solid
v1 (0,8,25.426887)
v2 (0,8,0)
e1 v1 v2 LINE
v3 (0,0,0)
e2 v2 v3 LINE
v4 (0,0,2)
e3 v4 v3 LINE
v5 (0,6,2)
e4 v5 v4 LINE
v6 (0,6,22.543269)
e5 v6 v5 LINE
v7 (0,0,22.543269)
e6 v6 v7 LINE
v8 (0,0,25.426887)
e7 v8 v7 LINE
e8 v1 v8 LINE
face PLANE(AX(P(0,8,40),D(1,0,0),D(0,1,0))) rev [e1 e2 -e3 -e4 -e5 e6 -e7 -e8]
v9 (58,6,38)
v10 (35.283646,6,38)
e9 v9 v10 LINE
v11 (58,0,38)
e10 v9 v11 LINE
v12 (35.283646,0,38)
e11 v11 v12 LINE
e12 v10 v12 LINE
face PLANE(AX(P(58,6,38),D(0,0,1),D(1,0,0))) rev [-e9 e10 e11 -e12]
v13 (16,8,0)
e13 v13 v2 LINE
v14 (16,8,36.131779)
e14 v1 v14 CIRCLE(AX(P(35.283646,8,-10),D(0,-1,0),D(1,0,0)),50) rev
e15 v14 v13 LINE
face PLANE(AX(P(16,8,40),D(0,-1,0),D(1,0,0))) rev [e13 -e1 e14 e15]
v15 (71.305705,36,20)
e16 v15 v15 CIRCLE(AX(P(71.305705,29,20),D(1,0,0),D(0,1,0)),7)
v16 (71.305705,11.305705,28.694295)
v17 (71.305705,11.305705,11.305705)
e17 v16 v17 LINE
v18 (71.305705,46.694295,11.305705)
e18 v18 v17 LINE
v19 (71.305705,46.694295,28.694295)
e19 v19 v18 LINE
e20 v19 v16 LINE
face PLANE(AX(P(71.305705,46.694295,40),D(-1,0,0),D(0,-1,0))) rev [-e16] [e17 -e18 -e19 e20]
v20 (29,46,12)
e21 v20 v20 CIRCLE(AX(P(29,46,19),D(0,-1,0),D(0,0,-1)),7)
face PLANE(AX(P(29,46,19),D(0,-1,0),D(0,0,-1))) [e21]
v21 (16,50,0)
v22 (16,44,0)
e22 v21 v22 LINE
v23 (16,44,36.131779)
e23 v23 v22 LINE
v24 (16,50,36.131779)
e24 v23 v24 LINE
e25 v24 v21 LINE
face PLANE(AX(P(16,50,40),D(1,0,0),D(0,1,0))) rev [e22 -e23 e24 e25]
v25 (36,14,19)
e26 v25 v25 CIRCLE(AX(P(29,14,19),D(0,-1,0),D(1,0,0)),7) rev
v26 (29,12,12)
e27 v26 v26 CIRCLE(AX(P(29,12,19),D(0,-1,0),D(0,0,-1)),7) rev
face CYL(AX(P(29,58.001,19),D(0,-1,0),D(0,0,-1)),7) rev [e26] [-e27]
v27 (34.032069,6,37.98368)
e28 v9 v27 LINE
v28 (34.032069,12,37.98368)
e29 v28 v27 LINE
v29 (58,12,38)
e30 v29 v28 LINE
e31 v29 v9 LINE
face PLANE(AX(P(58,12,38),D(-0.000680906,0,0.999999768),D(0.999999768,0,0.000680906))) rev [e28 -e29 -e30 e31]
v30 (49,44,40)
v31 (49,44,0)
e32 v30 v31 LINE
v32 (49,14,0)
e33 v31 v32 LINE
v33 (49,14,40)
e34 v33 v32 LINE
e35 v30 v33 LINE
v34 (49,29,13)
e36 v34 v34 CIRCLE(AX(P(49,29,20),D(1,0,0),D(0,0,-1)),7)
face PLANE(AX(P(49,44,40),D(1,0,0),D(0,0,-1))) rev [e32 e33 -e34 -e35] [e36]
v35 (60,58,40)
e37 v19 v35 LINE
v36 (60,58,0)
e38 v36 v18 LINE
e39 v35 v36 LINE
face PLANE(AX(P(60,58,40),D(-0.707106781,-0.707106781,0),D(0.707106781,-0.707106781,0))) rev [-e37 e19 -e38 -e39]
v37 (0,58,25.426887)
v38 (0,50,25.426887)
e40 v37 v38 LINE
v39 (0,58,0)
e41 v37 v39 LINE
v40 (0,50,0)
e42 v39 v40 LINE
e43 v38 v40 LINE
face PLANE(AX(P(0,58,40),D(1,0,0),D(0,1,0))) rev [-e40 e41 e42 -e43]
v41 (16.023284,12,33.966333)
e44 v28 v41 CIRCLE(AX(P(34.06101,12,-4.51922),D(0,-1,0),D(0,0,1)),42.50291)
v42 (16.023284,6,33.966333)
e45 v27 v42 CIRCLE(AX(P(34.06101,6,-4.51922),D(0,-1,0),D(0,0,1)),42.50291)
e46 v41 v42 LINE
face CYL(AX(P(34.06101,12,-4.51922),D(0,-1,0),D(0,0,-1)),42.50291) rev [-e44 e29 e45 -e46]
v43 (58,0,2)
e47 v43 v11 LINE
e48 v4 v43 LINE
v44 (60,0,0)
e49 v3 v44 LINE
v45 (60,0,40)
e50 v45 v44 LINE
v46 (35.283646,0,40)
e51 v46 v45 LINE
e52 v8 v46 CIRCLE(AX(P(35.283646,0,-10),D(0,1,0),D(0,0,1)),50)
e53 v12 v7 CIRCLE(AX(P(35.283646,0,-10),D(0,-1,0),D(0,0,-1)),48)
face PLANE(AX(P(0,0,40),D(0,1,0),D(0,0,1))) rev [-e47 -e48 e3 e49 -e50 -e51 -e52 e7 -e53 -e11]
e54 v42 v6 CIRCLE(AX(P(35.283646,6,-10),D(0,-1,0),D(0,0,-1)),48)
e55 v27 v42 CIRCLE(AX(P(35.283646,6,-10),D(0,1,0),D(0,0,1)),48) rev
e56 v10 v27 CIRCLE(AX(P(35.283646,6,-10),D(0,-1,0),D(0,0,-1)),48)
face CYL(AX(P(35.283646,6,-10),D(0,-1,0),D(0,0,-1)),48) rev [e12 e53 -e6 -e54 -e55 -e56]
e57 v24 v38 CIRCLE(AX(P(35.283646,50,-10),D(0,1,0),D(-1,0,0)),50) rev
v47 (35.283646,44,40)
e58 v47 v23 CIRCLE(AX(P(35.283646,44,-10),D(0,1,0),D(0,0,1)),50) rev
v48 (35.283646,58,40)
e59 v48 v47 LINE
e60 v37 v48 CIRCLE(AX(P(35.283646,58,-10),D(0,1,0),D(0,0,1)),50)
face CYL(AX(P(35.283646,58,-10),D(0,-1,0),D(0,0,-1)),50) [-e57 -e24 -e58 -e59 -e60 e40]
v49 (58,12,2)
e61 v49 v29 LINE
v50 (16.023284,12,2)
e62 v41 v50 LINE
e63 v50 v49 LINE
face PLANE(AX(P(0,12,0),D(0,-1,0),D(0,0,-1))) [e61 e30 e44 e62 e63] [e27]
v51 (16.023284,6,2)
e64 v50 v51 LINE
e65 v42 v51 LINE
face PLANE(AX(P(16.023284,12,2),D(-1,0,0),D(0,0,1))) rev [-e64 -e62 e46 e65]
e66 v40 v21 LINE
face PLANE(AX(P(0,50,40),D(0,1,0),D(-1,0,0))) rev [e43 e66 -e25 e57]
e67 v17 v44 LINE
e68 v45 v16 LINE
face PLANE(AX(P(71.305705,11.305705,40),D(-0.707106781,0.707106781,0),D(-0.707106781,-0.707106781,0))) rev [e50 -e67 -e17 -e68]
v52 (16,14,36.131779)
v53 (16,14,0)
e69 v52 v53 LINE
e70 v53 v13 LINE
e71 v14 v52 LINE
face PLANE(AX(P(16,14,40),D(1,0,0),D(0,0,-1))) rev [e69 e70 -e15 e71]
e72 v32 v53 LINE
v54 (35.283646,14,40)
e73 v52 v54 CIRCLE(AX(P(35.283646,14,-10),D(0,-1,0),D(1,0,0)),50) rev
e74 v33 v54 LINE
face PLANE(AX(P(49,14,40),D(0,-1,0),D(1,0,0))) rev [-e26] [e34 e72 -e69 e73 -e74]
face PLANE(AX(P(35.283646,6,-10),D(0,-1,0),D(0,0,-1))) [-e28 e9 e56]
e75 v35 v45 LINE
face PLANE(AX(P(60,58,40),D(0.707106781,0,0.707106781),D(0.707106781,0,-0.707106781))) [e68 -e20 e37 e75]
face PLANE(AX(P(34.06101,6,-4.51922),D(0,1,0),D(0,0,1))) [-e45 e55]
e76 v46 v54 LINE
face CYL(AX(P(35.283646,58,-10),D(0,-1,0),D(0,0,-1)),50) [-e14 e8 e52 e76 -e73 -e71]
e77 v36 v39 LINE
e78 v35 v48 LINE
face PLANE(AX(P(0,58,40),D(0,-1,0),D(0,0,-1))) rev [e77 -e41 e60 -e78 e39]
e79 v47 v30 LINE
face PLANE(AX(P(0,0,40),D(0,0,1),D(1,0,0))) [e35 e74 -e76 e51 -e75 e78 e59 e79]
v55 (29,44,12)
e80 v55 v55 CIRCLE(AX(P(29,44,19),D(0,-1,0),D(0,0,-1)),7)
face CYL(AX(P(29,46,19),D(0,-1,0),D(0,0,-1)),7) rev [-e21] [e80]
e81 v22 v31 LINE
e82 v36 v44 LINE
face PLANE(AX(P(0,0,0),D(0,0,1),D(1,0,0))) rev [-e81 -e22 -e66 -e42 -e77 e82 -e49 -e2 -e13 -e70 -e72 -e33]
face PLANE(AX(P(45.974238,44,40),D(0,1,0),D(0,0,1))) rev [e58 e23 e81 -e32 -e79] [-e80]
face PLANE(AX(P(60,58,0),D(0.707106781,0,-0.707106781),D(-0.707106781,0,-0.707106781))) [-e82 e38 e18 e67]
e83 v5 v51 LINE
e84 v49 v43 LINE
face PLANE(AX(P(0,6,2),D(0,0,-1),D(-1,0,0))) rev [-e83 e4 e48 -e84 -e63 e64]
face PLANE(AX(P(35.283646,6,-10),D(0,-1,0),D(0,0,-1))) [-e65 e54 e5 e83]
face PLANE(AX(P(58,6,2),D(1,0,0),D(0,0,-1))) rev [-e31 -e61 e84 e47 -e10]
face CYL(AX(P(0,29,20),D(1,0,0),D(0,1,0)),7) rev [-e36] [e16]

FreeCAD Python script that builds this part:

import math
import FreeCAD as App
import Part
import Sketcher
from FreeCAD import Vector


def add_polygon(sketch, points):
    """Adds a closed chain of lines whose ends are joined by coincident constraints."""
    first, n = sketch.GeometryCount, len(points)
    for a, b in zip(points, points[1:] + points[:1]):
        sketch.addGeometry(Part.LineSegment(App.Vector(*a, 0), App.Vector(*b, 0)), False)
    for i in range(n):
        sketch.addConstraint(Sketcher.Constraint("Coincident", first + i, 2, first + (i + 1) % n, 1))

doc = App.newDocument("Part")
body = doc.addObject("PartDesign::Body", "Body")

sketch1 = body.newObject("Sketcher::SketchObject", "Sketch")
sketch1.AttachmentSupport = (doc.getObject("XY_Plane"), [""])
sketch1.MapMode = "FlatFace"
add_polygon(sketch1, [(71.305705, 46.694295), (60, 58), (0, 58), (0, 50), (16, 50), (16, 44), (49, 44), (49, 14), (16, 14), (16, 8), (0, 8), (0, 0), (60, 0), (71.305705, 11.305705)])
sketch1.addConstraint(Sketcher.Constraint("Horizontal", 1))
sketch1.addConstraint(Sketcher.Constraint("Vertical", 2))
sketch1.addConstraint(Sketcher.Constraint("Horizontal", 3))
sketch1.addConstraint(Sketcher.Constraint("Vertical", 4))
sketch1.addConstraint(Sketcher.Constraint("Horizontal", 5))
sketch1.addConstraint(Sketcher.Constraint("Vertical", 6))
sketch1.addConstraint(Sketcher.Constraint("Horizontal", 7))
sketch1.addConstraint(Sketcher.Constraint("Vertical", 8))
sketch1.addConstraint(Sketcher.Constraint("Horizontal", 9))
sketch1.addConstraint(Sketcher.Constraint("Vertical", 10))
sketch1.addConstraint(Sketcher.Constraint("Horizontal", 11))
sketch1.addConstraint(Sketcher.Constraint("Vertical", 13))
sketch1.addConstraint(Sketcher.Constraint("Coincident", 10, 2, -1, 1))
sketch1.addConstraint(Sketcher.Constraint("PointOnObject", 1, 2, -2))
sketch1.addConstraint(Sketcher.Constraint("Perpendicular", 0, 12))
sketch1.addConstraint(Sketcher.Constraint("Vertical", 4, 2, 7, 2))
sketch1.addConstraint(Sketcher.Constraint("Vertical", 0, 2, 11, 2))
sketch1.addConstraint(Sketcher.Constraint("Equal", 4, 8))
sketch1.addConstraint(Sketcher.Constraint("Equal", 2, 10))
sketch1.addConstraint(Sketcher.Constraint("Equal", 0, 12))
sketch1.addConstraint(Sketcher.Constraint("DistanceX", 1, 2, 1, 1, 60.0))
sketch1.addConstraint(Sketcher.Constraint("DistanceX", 3, 1, 3, 2, 16.0))
sketch1.addConstraint(Sketcher.Constraint("DistanceX", 5, 1, 5, 2, 33.0))
sketch1.addConstraint(Sketcher.Constraint("DistanceY", 2, 2, 2, 1, 8.0))
sketch1.addConstraint(Sketcher.Constraint("DistanceY", 4, 2, 4, 1, 6.0))
sketch1.addConstraint(Sketcher.Constraint("DistanceY", 6, 2, 6, 1, 30.0))
sketch1.addConstraint(Sketcher.Constraint("DistanceY", 13, 1, 13, 2, 35.388589))
pad1 = body.newObject("PartDesign::Pad", "Pad")
pad1.Profile = sketch1
pad1.Length = 40

sketch2 = body.newObject("Sketcher::SketchObject", "Sketch001")
sketch2.AttachmentSupport = (doc.getObject("XZ_Plane"), [""])
sketch2.MapMode = "FlatFace"
sketch2.addGeometry(Part.LineSegment(Vector(0, 40, 0), Vector(0, 25.426887, 0)), False)
sketch2.addGeometry(Part.ArcOfCircle(Part.Circle(Vector(35.283646, -10, 0), Vector(0, 0, 1), 50), math.radians(90), math.radians(134.883934)), False)
sketch2.addGeometry(Part.LineSegment(Vector(35.283646, 40, 0), Vector(0, 40, 0)), False)
sketch2.addConstraint(Sketcher.Constraint("Coincident", 0, 2, 1, 2))
sketch2.addConstraint(Sketcher.Constraint("Tangent", 1, 1, 2, 1))
sketch2.addConstraint(Sketcher.Constraint("Coincident", 2, 2, 0, 1))
sketch2.addConstraint(Sketcher.Constraint("Vertical", 0))
sketch2.addConstraint(Sketcher.Constraint("Horizontal", 2))
sketch2.addConstraint(Sketcher.Constraint("PointOnObject", 0, 2, -2))
sketch2.addConstraint(Sketcher.Constraint("Radius", 1, 50.0))
sketch2.addConstraint(Sketcher.Constraint("DistanceY", 1, 3, -1, 1, 10.0))
sketch2.addConstraint(Sketcher.Constraint("DistanceX", 2, 2, 2, 1, 35.283646))
pocket1 = body.newObject("PartDesign::Pocket", "Pocket")
pocket1.Profile = sketch2
pocket1.Type = "ThroughAll"

sketch3 = body.newObject("Sketcher::SketchObject", "Sketch002")
sketch3.AttachmentSupport = (doc.getObject("XZ_Plane"), [""])
sketch3.MapMode = "FlatFace"
add_polygon(sketch3, [(60, 0), (71.305705, 11.305705), (71.305705, 0)])
add_polygon(sketch3, [(71.305705, 28.694295), (60, 40), (71.305705, 40)])
sketch3.addConstraint(Sketcher.Constraint("Vertical", 1))
sketch3.addConstraint(Sketcher.Constraint("Horizontal", 2))
sketch3.addConstraint(Sketcher.Constraint("Horizontal", 4))
sketch3.addConstraint(Sketcher.Constraint("Vertical", 5))
sketch3.addConstraint(Sketcher.Constraint("PointOnObject", 1, 2, -1))
sketch3.addConstraint(Sketcher.Constraint("Perpendicular", 0, 3))
sketch3.addConstraint(Sketcher.Constraint("Vertical", 2, 2, 3, 2))
sketch3.addConstraint(Sketcher.Constraint("Vertical", 1, 2, 4, 2))
sketch3.addConstraint(Sketcher.Constraint("Equal", 4, 1))
sketch3.addConstraint(Sketcher.Constraint("DistanceX", -1, 1, 2, 2, 60.0))
sketch3.addConstraint(Sketcher.Constraint("DistanceY", -1, 1, 3, 2, 40.0))
sketch3.addConstraint(Sketcher.Constraint("DistanceX", 2, 2, 2, 1, 11.305705))
pocket2 = body.newObject("PartDesign::Pocket", "Pocket001")
pocket2.Profile = sketch3
pocket2.Type = "ThroughAll"

sketch4 = body.newObject("Sketcher::SketchObject", "Sketch003")
sketch4.AttachmentSupport = (doc.getObject("YZ_Plane"), [""])
sketch4.MapMode = "FlatFace"
sketch4.AttachmentOffset = App.Placement(Vector(0, 0, 71.305705), App.Rotation())
sketch4.addGeometry(Part.Circle(Vector(29, 20, 0), Vector(0, 0, 1), 7), False)
sketch4.addConstraint(Sketcher.Constraint("Diameter", 0, 14.0))
sketch4.addConstraint(Sketcher.Constraint("DistanceX", -1, 1, 0, 3, 29.0))
sketch4.addConstraint(Sketcher.Constraint("DistanceY", -1, 1, 0, 3, 20.0))
pocket3 = body.newObject("PartDesign::Pocket", "Pocket002")
pocket3.Profile = sketch4
pocket3.Type = "ThroughAll"

sketch5 = body.newObject("Sketcher::SketchObject", "Sketch004")
sketch5.AttachmentSupport = (doc.getObject("XZ_Plane"), [""])
sketch5.MapMode = "FlatFace"
sketch5.addGeometry(Part.Circle(Vector(29, 19, 0), Vector(0, 0, 1), 7), False)
sketch5.addConstraint(Sketcher.Constraint("Diameter", 0, 14.0))
sketch5.addConstraint(Sketcher.Constraint("DistanceX", -1, 1, 0, 3, 29.0))
sketch5.addConstraint(Sketcher.Constraint("DistanceY", -1, 1, 0, 3, 19.0))
pocket4 = body.newObject("PartDesign::Pocket", "Pocket003")
pocket4.Profile = sketch5
pocket4.Type = "UpToFirst"

sketch6 = body.newObject("Sketcher::SketchObject", "Sketch005")
sketch6.AttachmentSupport = (doc.getObject("XZ_Plane"), [""])
sketch6.MapMode = "FlatFace"
sketch6.AttachmentOffset = App.Placement(Vector(0, 0, -44), App.Rotation())
sketch6.addGeometry(Part.Circle(Vector(29, 19, 0), Vector(0, 0, 1), 7), False)
sketch6.addConstraint(Sketcher.Constraint("Diameter", 0, 14.0))
sketch6.addConstraint(Sketcher.Constraint("DistanceX", -1, 1, 0, 3, 29.0))
sketch6.addConstraint(Sketcher.Constraint("DistanceY", -1, 1, 0, 3, 19.0))
pocket5 = body.newObject("PartDesign::Pocket", "Pocket004")
pocket5.Profile = sketch6
pocket5.Length = 2

sketch7 = body.newObject("Sketcher::SketchObject", "Sketch006")
sketch7.AttachmentSupport = (doc.getObject("XZ_Plane"), [""])
sketch7.MapMode = "FlatFace"
sketch7.addGeometry(Part.LineSegment(Vector(0, 22.543269, 0), Vector(0, 2, 0)), False)
sketch7.addGeometry(Part.LineSegment(Vector(0, 2, 0), Vector(58, 2, 0)), False)
sketch7.addGeometry(Part.LineSegment(Vector(58, 2, 0), Vector(58, 38, 0)), False)
sketch7.addGeometry(Part.LineSegment(Vector(58, 38, 0), Vector(35.283646, 38, 0)), False)
sketch7.addGeometry(Part.ArcOfCircle(Part.Circle(Vector(35.283646, -10, 0), Vector(0, 0, 1), 48), math.radians(90), math.radians(137.313635)), False)
sketch7.addConstraint(Sketcher.Constraint("Coincident", 0, 2, 1, 1))
sketch7.addConstraint(Sketcher.Constraint("Coincident", 1, 2, 2, 1))
sketch7.addConstraint(Sketcher.Constraint("Coincident", 2, 2, 3, 1))
sketch7.addConstraint(Sketcher.Constraint("Tangent", 3, 2, 4, 1))
sketch7.addConstraint(Sketcher.Constraint("Coincident", 4, 2, 0, 1))
sketch7.addConstraint(Sketcher.Constraint("Vertical", 0))
sketch7.addConstraint(Sketcher.Constraint("Horizontal", 1))
sketch7.addConstraint(Sketcher.Constraint("Vertical", 2))
sketch7.addConstraint(Sketcher.Constraint("Horizontal", 3))
sketch7.addConstraint(Sketcher.Constraint("PointOnObject", 0, 2, -2))
sketch7.addConstraint(Sketcher.Constraint("Radius", 4, 48.0))
sketch7.addConstraint(Sketcher.Constraint("DistanceX", 1, 1, 1, 2, 58.0))
sketch7.addConstraint(Sketcher.Constraint("DistanceY", 2, 1, 2, 2, 36.0))
sketch7.addConstraint(Sketcher.Constraint("DistanceY", 4, 3, -1, 1, 10.0))
sketch7.addConstraint(Sketcher.Constraint("DistanceY", 0, 2, 0, 1, 20.543269))
pocket6 = body.newObject("PartDesign::Pocket", "Pocket005")
pocket6.Profile = sketch7
pocket6.Length = 6

sketch8 = body.newObject("Sketcher::SketchObject", "Sketch007")
sketch8.AttachmentSupport = (doc.getObject("XZ_Plane"), [""])
sketch8.MapMode = "FlatFace"
sketch8.AttachmentOffset = App.Placement(Vector(0, 0, -6), App.Rotation())
add_polygon(sketch8, [(16.023284, 33.966333), (16.023284, 2), (58, 2), (58, 33.966333)])
sketch8.addConstraint(Sketcher.Constraint("Vertical", 0))
sketch8.addConstraint(Sketcher.Constraint("Horizontal", 1))
sketch8.addConstraint(Sketcher.Constraint("Vertical", 2))
sketch8.addConstraint(Sketcher.Constraint("Horizontal", 3))
sketch8.addConstraint(Sketcher.Constraint("DistanceY", -1, 1, 0, 2, 2.0))
sketch8.addConstraint(Sketcher.Constraint("DistanceX", -1, 1, 1, 2, 58.0))
sketch8.addConstraint(Sketcher.Constraint("DistanceX", 1, 1, 1, 2, 41.976716))
sketch8.addConstraint(Sketcher.Constraint("DistanceY", 0, 2, 0, 1, 31.966333))
pocket7 = body.newObject("PartDesign::Pocket", "Pocket006")
pocket7.Profile = sketch8
pocket7.Length = 6

sketch9 = body.newObject("Sketcher::SketchObject", "Sketch008")
sketch9.AttachmentSupport = (doc.getObject("XZ_Plane"), [""])
sketch9.MapMode = "FlatFace"
sketch9.AttachmentOffset = App.Placement(Vector(0, 0, -6), App.Rotation())
sketch9.addGeometry(Part.LineSegment(Vector(16.023284, 33.966333, 0), Vector(58, 33.966333, 0)), False)
sketch9.addGeometry(Part.LineSegment(Vector(58, 33.966333, 0), Vector(58, 38, 0)), False)
sketch9.addGeometry(Part.LineSegment(Vector(58, 38, 0), Vector(34.032069, 37.98368, 0)), False)
sketch9.addGeometry(Part.ArcOfCircle(Part.Circle(Vector(34.06101, -4.51922, 0), Vector(0, 0, 1), 42.50291), math.radians(90.039013), math.radians(115.111933)), False)
sketch9.addConstraint(Sketcher.Constraint("Coincident", 0, 2, 1, 1))
sketch9.addConstraint(Sketcher.Constraint("Coincident", 1, 2, 2, 1))
sketch9.addConstraint(Sketcher.Constraint("Tangent", 2, 2, 3, 1))
sketch9.addConstraint(Sketcher.Constraint("Coincident", 3, 2, 0, 1))
sketch9.addConstraint(Sketcher.Constraint("Horizontal", 0))
sketch9.addConstraint(Sketcher.Constraint("Vertical", 1))
sketch9.addConstraint(Sketcher.Constraint("DistanceX", -1, 1, 0, 2, 58.0))
sketch9.addConstraint(Sketcher.Constraint("DistanceY", -1, 1, 1, 2, 38.0))
sketch9.addConstraint(Sketcher.Constraint("Radius", 3, 42.50291))
sketch9.addConstraint(Sketcher.Constraint("DistanceX", 0, 1, 0, 2, 41.976716))
sketch9.addConstraint(Sketcher.Constraint("DistanceY", 1, 1, 1, 2, 4.033667))
sketch9.addConstraint(Sketcher.Constraint("DistanceX", -1, 1, 3, 3, 34.06101))
pocket8 = body.newObject("PartDesign::Pocket", "Pocket007")
pocket8.Profile = sketch9
pocket8.Length = 6

doc.recompute()
